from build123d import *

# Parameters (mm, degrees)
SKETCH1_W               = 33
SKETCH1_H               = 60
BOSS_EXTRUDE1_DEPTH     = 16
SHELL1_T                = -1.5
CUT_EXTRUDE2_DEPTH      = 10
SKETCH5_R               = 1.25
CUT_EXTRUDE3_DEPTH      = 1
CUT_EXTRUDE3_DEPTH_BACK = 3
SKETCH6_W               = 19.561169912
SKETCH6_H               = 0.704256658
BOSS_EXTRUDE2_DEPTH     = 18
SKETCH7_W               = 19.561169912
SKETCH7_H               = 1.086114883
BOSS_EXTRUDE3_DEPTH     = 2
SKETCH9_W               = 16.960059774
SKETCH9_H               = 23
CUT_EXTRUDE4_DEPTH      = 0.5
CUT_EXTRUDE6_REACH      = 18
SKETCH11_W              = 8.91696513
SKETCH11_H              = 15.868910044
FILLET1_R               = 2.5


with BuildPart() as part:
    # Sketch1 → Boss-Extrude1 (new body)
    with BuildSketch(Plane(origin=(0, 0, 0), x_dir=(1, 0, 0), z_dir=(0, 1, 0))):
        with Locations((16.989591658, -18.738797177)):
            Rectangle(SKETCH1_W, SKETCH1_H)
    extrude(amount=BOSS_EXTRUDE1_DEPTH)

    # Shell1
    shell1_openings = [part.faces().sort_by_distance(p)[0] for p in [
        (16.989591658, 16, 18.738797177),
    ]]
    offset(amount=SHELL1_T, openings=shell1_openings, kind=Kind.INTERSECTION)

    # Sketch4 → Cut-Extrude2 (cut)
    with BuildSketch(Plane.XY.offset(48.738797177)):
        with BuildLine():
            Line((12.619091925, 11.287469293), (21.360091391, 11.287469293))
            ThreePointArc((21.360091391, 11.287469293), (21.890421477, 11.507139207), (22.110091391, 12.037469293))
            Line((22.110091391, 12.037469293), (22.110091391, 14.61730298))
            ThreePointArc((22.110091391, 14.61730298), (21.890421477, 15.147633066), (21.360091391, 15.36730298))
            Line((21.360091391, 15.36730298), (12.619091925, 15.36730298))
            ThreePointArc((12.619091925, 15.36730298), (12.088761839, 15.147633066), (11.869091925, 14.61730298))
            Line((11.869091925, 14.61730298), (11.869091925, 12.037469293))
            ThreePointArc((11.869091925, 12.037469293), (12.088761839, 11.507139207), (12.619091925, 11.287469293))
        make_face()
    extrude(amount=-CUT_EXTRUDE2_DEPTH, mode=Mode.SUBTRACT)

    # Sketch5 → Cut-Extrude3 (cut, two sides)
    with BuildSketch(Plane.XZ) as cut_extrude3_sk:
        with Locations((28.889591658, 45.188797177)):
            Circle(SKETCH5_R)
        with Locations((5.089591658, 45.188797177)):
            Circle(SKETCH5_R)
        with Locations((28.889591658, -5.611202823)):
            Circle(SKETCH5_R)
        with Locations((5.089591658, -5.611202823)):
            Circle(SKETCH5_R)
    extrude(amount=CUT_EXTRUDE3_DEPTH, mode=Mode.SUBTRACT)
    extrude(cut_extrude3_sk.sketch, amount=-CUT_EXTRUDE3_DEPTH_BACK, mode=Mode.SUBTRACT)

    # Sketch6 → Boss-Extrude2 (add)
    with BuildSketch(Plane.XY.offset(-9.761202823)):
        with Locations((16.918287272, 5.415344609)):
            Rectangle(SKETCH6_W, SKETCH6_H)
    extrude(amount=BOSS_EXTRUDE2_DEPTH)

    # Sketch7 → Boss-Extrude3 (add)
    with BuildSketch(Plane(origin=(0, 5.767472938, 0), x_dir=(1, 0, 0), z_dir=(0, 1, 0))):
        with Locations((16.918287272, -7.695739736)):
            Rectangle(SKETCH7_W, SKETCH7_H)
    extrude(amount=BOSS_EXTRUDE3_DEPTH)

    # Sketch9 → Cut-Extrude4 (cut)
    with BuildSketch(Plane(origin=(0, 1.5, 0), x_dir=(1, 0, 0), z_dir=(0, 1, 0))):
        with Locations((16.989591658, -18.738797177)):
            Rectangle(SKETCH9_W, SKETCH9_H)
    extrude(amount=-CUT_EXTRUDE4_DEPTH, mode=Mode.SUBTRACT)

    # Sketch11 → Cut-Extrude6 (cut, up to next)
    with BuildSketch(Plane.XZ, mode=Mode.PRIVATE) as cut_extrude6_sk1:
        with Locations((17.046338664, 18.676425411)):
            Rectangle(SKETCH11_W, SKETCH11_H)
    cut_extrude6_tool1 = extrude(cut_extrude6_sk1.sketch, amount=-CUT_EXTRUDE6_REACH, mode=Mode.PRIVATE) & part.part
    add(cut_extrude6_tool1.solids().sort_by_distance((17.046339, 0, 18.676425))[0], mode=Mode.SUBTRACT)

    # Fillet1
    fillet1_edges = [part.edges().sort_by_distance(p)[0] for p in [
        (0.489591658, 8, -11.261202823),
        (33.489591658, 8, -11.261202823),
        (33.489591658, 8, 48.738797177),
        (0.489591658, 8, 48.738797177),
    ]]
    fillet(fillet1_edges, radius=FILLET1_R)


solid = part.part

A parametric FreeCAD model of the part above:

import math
import FreeCAD as App
import Part
import Sketcher
Q = App.Units.Quantity


def edges_at(feature, points):
    """Names of the edges that pass closest to the given points."""
    edges = feature.Shape.Edges
    near = lambda p: min(range(len(edges)), key=lambda i: edges[i].distToShape(Part.Vertex(*p))[0])
    return sorted({f"Edge{near(p) + 1}" for p in points})


def faces_at(feature, points):
    """Names of the faces that lie closest to the given points."""
    faces = feature.Shape.Faces
    near = lambda p: min(range(len(faces)), key=lambda i: faces[i].distToShape(Part.Vertex(*p))[0])
    return sorted({f"Face{near(p) + 1}" for p in points})

doc = App.newDocument("Part")
params = doc.addObject("Spreadsheet::Sheet", "Params")
for row, (alias, value) in enumerate([
    ("sketch1_width", "33 mm"),
    ("sketch1_height", "60 mm"),
    ("pad1_length", "16 mm"),
    ("thickness_wall", "1.5 mm"),
    ("sketch2_radius", "0.75 mm"),
    ("pocket1_length", "10 mm"),
    ("sketch3_diameter", "2.5 mm"),
    ("pad2_length", "18 mm"),
    ("pad3_length", "2 mm"),
    ("sketch6_height", "23 mm"),
    ("pocket3_length", "0.5 mm"),
    ("fillet_radius", "2.5 mm"),
], start=1):
    params.set(f"A{row}", alias)
    params.set(f"B{row}", "=" + value)
    params.setAlias(f"B{row}", alias)

body = doc.addObject("PartDesign::Body", "Body")

# Sketch on XZ plane
sketch1 = doc.addObject("Sketcher::SketchObject", "Sketch")
body.addObject(sketch1)
sketch1.AttachmentSupport = (doc.XZ_Plane, [""])
sketch1.MapMode = "FlatFace"
sketch1.addGeometry(Part.LineSegment(App.Vector(0, -11, 0), App.Vector(0, 49, 0)), False)
sketch1.addGeometry(Part.LineSegment(App.Vector(0, 49, 0), App.Vector(33, 49, 0)), False)
sketch1.addGeometry(Part.LineSegment(App.Vector(33, 49, 0), App.Vector(33, -11, 0)), False)
sketch1.addGeometry(Part.LineSegment(App.Vector(33, -11, 0), App.Vector(0, -11, 0)), False)
sketch1.addConstraint(Sketcher.Constraint("Coincident", 0, 2, 1, 1))
sketch1.addConstraint(Sketcher.Constraint("Coincident", 1, 2, 2, 1))
sketch1.addConstraint(Sketcher.Constraint("Coincident", 2, 2, 3, 1))
sketch1.addConstraint(Sketcher.Constraint("Coincident", 3, 2, 0, 1))
sketch1.addConstraint(Sketcher.Constraint("Vertical", 0))
sketch1.addConstraint(Sketcher.Constraint("Horizontal", 1))
sketch1.addConstraint(Sketcher.Constraint("Vertical", 2))
sketch1.addConstraint(Sketcher.Constraint("Horizontal", 3))
sketch1.addConstraint(Sketcher.Constraint("DistanceX", 1, 1, 1, 2, Q("33 mm")))
sketch1.addConstraint(Sketcher.Constraint("DistanceY", 0, 1, 0, 2, Q("60 mm")))
sketch1.addConstraint(Sketcher.Constraint("DistanceX", -1, 1, 0, 2, Q("0.489592 mm")))
sketch1.addConstraint(Sketcher.Constraint("DistanceY", -1, 1, 0, 2, Q("48.738797 mm")))
sketch1.setExpression("Constraints[8]", "Params.sketch1_width")
sketch1.setExpression("Constraints[9]", "Params.sketch1_height")
pad1 = doc.addObject("PartDesign::Pad", "Pad")
body.addObject(pad1)
pad1.Profile = sketch1
pad1.setExpression("Length", "Params.pad1_length")
pad1.Reversed = True
doc.recompute()

thickness = doc.addObject("PartDesign::Thickness", "Thickness")
body.addObject(thickness)
thickness.Base = (pad1, faces_at(pad1, [(16.99, 16, 18.739)]))
thickness.setExpression("Value", "Params.thickness_wall")
thickness.Reversed = True
thickness.Join = "Intersection"

# Sketch on XY plane
sketch2 = doc.addObject("Sketcher::SketchObject", "Sketch001")
body.addObject(sketch2)
sketch2.AttachmentSupport = (doc.XY_Plane, [""])
sketch2.MapMode = "FlatFace"
sketch2.AttachmentOffset = App.Placement(App.Vector(0, 0, 48.738797), App.Rotation())
sketch2.addGeometry(Part.LineSegment(App.Vector(12.6, 11.3, 0), App.Vector(21.4, 11.3, 0)), False)
sketch2.addGeometry(Part.ArcOfCircle(Part.Circle(App.Vector(21.4, 12, 0), App.Vector(0, 0, 1), 0.8), math.radians(-90), math.radians(0)), False)
sketch2.addGeometry(Part.LineSegment(App.Vector(22.1, 12, 0), App.Vector(22.1, 14.6, 0)), False)
sketch2.addGeometry(Part.ArcOfCircle(Part.Circle(App.Vector(21.4, 14.6, 0), App.Vector(0, 0, 1), 0.8), math.radians(0), math.radians(90)), False)
sketch2.addGeometry(Part.LineSegment(App.Vector(21.4, 15.4, 0), App.Vector(12.6, 15.4, 0)), False)
sketch2.addGeometry(Part.ArcOfCircle(Part.Circle(App.Vector(12.6, 14.6, 0), App.Vector(0, 0, 1), 0.8), math.radians(90), math.radians(180)), False)
sketch2.addGeometry(Part.LineSegment(App.Vector(11.9, 14.6, 0), App.Vector(11.9, 12, 0)), False)
sketch2.addGeometry(Part.ArcOfCircle(Part.Circle(App.Vector(12.6, 12, 0), App.Vector(0, 0, 1), 0.8), math.radians(180), math.radians(270)), False)
sketch2.addConstraint(Sketcher.Constraint("Tangent", 0, 2, 1, 1))
sketch2.addConstraint(Sketcher.Constraint("Tangent", 1, 2, 2, 1))
sketch2.addConstraint(Sketcher.Constraint("Tangent", 2, 2, 3, 1))
sketch2.addConstraint(Sketcher.Constraint("Tangent", 3, 2, 4, 1))
sketch2.addConstraint(Sketcher.Constraint("Tangent", 4, 2, 5, 1))
sketch2.addConstraint(Sketcher.Constraint("Tangent", 5, 2, 6, 1))
sketch2.addConstraint(Sketcher.Constraint("Tangent", 6, 2, 7, 1))
sketch2.addConstraint(Sketcher.Constraint("Tangent", 7, 2, 0, 1))
sketch2.addConstraint(Sketcher.Constraint("Horizontal", 0))
sketch2.addConstraint(Sketcher.Constraint("Vertical", 2))
sketch2.addConstraint(Sketcher.Constraint("Horizontal", 4))
sketch2.addConstraint(Sketcher.Constraint("Vertical", 6))
sketch2.addConstraint(Sketcher.Constraint("Equal", 1, 3))
sketch2.addConstraint(Sketcher.Constraint("Equal", 3, 5))
sketch2.addConstraint(Sketcher.Constraint("Equal", 5, 7))
sketch2.addConstraint(Sketcher.Constraint("Radius", 1, Q("0.75 mm")))
sketch2.addConstraint(Sketcher.Constraint("DistanceX", 0, 1, 0, 2, Q("8.740999 mm")))
sketch2.addConstraint(Sketcher.Constraint("DistanceY", 2, 1, 2, 2, Q("2.579834 mm")))
sketch2.addConstraint(Sketcher.Constraint("DistanceX", -1, 1, 1, 3, Q("21.360091 mm")))
sketch2.addConstraint(Sketcher.Constraint("DistanceY", -1, 1, 1, 3, Q("12.037469 mm")))
sketch2.setExpression("Constraints[15]", "Params.sketch2_radius")
pocket1 = doc.addObject("PartDesign::Pocket", "Pocket")
body.addObject(pocket1)
pocket1.Profile = sketch2
pocket1.setExpression("Length", "Params.pocket1_length")

# Sketch on XZ plane
sketch3 = doc.addObject("Sketcher::SketchObject", "Sketch002")
body.addObject(sketch3)
sketch3.AttachmentSupport = (doc.XZ_Plane, [""])
sketch3.MapMode = "FlatFace"
sketch3.addGeometry(Part.Circle(App.Vector(28.9, 45.2, 0), App.Vector(0, 0, 1), 1.2), False)
sketch3.addGeometry(Part.Circle(App.Vector(5.1, 45.2, 0), App.Vector(0, 0, 1), 1.2), False)
sketch3.addGeometry(Part.Circle(App.Vector(28.9, -5.6, 0), App.Vector(0, 0, 1), 1.2), False)
sketch3.addGeometry(Part.Circle(App.Vector(5.1, -5.6, 0), App.Vector(0, 0, 1), 1.2), False)
sketch3.addConstraint(Sketcher.Constraint("Equal", 0, 1))
sketch3.addConstraint(Sketcher.Constraint("Equal", 1, 2))
sketch3.addConstraint(Sketcher.Constraint("Equal", 2, 3))
sketch3.addConstraint(Sketcher.Constraint("Horizontal", 0, 3, 1, 3))
sketch3.addConstraint(Sketcher.Constraint("Horizontal", 2, 3, 3, 3))
sketch3.addConstraint(Sketcher.Constraint("Vertical", 0, 3, 2, 3))
sketch3.addConstraint(Sketcher.Constraint("Vertical", 1, 3, 3, 3))
sketch3.addConstraint(Sketcher.Constraint("Diameter", 0, Q("2.5 mm")))
sketch3.addConstraint(Sketcher.Constraint("DistanceX", 1, 3, 0, 3, Q("23.8 mm")))
sketch3.addConstraint(Sketcher.Constraint("DistanceY", 2, 3, 0, 3, Q("50.8 mm")))
sketch3.addConstraint(Sketcher.Constraint("DistanceX", -1, 1, 0, 3, Q("28.889592 mm")))
sketch3.addConstraint(Sketcher.Constraint("DistanceY", -1, 1, 0, 3, Q("45.188797 mm")))
sketch3.setExpression("Constraints[7]", "Params.sketch3_diameter")
pocket2 = doc.addObject("PartDesign::Pocket", "Pocket001")
body.addObject(pocket2)
pocket2.Profile = sketch3
pocket2.Type = "ThroughAll"
pocket2.Midplane = True

# Sketch on XY plane
sketch4 = doc.addObject("Sketcher::SketchObject", "Sketch003")
body.addObject(sketch4)
sketch4.AttachmentSupport = (doc.XY_Plane, [""])
sketch4.MapMode = "FlatFace"
sketch4.AttachmentOffset = App.Placement(App.Vector(0, 0, -9.761203), App.Rotation())
sketch4.addGeometry(Part.LineSegment(App.Vector(7.1, 5.8, 0), App.Vector(7.1, 5.1, 0)), False)
sketch4.addGeometry(Part.LineSegment(App.Vector(7.1, 5.1, 0), App.Vector(26.7, 5.1, 0)), False)
sketch4.addGeometry(Part.LineSegment(App.Vector(26.7, 5.1, 0), App.Vector(26.7, 5.8, 0)), False)
sketch4.addGeometry(Part.LineSegment(App.Vector(26.7, 5.8, 0), App.Vector(7.1, 5.8, 0)), False)
sketch4.addConstraint(Sketcher.Constraint("Coincident", 0, 2, 1, 1))
sketch4.addConstraint(Sketcher.Constraint("Coincident", 1, 2, 2, 1))
sketch4.addConstraint(Sketcher.Constraint("Coincident", 2, 2, 3, 1))
sketch4.addConstraint(Sketcher.Constraint("Coincident", 3, 2, 0, 1))
sketch4.addConstraint(Sketcher.Constraint("Vertical", 0))
sketch4.addConstraint(Sketcher.Constraint("Horizontal", 1))
sketch4.addConstraint(Sketcher.Constraint("Vertical", 2))
sketch4.addConstraint(Sketcher.Constraint("Horizontal", 3))
sketch4.addConstraint(Sketcher.Constraint("DistanceX", 1, 1, 1, 2, Q("19.56117 mm")))
sketch4.addConstraint(Sketcher.Constraint("DistanceY", 0, 2, 0, 1, Q("0.704257 mm")))
sketch4.addConstraint(Sketcher.Constraint("DistanceX", -1, 1, 0, 2, Q("7.137702 mm")))
sketch4.addConstraint(Sketcher.Constraint("DistanceY", -1, 1, 0, 2, Q("5.063216 mm")))
pad2 = doc.addObject("PartDesign::Pad", "Pad001")
body.addObject(pad2)
pad2.Profile = sketch4
pad2.setExpression("Length", "Params.pad2_length")

# Sketch on XZ plane
sketch5 = doc.addObject("Sketcher::SketchObject", "Sketch004")
body.addObject(sketch5)
sketch5.AttachmentSupport = (doc.XZ_Plane, [""])
sketch5.MapMode = "FlatFace"
sketch5.AttachmentOffset = App.Placement(App.Vector(0, 0, -5.767473), App.Rotation())
sketch5.addGeometry(Part.LineSegment(App.Vector(7.1, 7.2, 0), App.Vector(7.1, 8.2, 0)), False)
sketch5.addGeometry(Part.LineSegment(App.Vector(7.1, 8.2, 0), App.Vector(26.7, 8.2, 0)), False)
sketch5.addGeometry(Part.LineSegment(App.Vector(26.7, 8.2, 0), App.Vector(26.7, 7.2, 0)), False)
sketch5.addGeometry(Part.LineSegment(App.Vector(26.7, 7.2, 0), App.Vector(7.1, 7.2, 0)), False)
sketch5.addConstraint(Sketcher.Constraint("Coincident", 0, 2, 1, 1))
sketch5.addConstraint(Sketcher.Constraint("Coincident", 1, 2, 2, 1))
sketch5.addConstraint(Sketcher.Constraint("Coincident", 2, 2, 3, 1))
sketch5.addConstraint(Sketcher.Constraint("Coincident", 3, 2, 0, 1))
sketch5.addConstraint(Sketcher.Constraint("Vertical", 0))
sketch5.addConstraint(Sketcher.Constraint("Horizontal", 1))
sketch5.addConstraint(Sketcher.Constraint("Vertical", 2))
sketch5.addConstraint(Sketcher.Constraint("Horizontal", 3))
sketch5.addConstraint(Sketcher.Constraint("DistanceX", 1, 1, 1, 2, Q("19.56117 mm")))
sketch5.addConstraint(Sketcher.Constraint("DistanceY", 0, 1, 0, 2, Q("1.086115 mm")))
sketch5.addConstraint(Sketcher.Constraint("DistanceX", -1, 1, 0, 2, Q("7.137702 mm")))
sketch5.addConstraint(Sketcher.Constraint("DistanceY", -1, 1, 0, 2, Q("8.238797 mm")))
pad3 = doc.addObject("PartDesign::Pad", "Pad002")
body.addObject(pad3)
pad3.Profile = sketch5
pad3.setExpression("Length", "Params.pad3_length")
pad3.Reversed = True

# Sketch on XZ plane
sketch6 = doc.addObject("Sketcher::SketchObject", "Sketch005")
body.addObject(sketch6)
sketch6.AttachmentSupport = (doc.XZ_Plane, [""])
sketch6.MapMode = "FlatFace"
sketch6.AttachmentOffset = App.Placement(App.Vector(0, 0, -1.5), App.Rotation())
sketch6.addGeometry(Part.LineSegment(App.Vector(9, 7, 0), App.Vector(9, 30, 0)), False)
sketch6.addGeometry(Part.LineSegment(App.Vector(9, 30, 0), App.Vector(25, 30, 0)), False)
sketch6.addGeometry(Part.LineSegment(App.Vector(25, 30, 0), App.Vector(25, 7, 0)), False)
sketch6.addGeometry(Part.LineSegment(App.Vector(25, 7, 0), App.Vector(9, 7, 0)), False)
sketch6.addConstraint(Sketcher.Constraint("Coincident", 0, 2, 1, 1))
sketch6.addConstraint(Sketcher.Constraint("Coincident", 1, 2, 2, 1))
sketch6.addConstraint(Sketcher.Constraint("Coincident", 2, 2, 3, 1))
sketch6.addConstraint(Sketcher.Constraint("Coincident", 3, 2, 0, 1))
sketch6.addConstraint(Sketcher.Constraint("Vertical", 0))
sketch6.addConstraint(Sketcher.Constraint("Horizontal", 1))
sketch6.addConstraint(Sketcher.Constraint("Vertical", 2))
sketch6.addConstraint(Sketcher.Constraint("Horizontal", 3))
sketch6.addConstraint(Sketcher.Constraint("DistanceY", 0, 1, 0, 2, Q("23 mm")))
sketch6.addConstraint(Sketcher.Constraint("DistanceX", 1, 1, 1, 2, Q("16.96006 mm")))
sketch6.addConstraint(Sketcher.Constraint("DistanceX", -1, 1, 0, 2, Q("8.509562 mm")))
sketch6.addConstraint(Sketcher.Constraint("DistanceY", -1, 1, 0, 2, Q("30.238797 mm")))
sketch6.setExpression("Constraints[8]", "Params.sketch6_height")
pocket3 = doc.addObject("PartDesign::Pocket", "Pocket002")
body.addObject(pocket3)
pocket3.Profile = sketch6
pocket3.setExpression("Length", "Params.pocket3_length")
pocket3.Reversed = True

# Sketch on XZ plane
sketch7 = doc.addObject("Sketcher::SketchObject", "Sketch006")
body.addObject(sketch7)
sketch7.AttachmentSupport = (doc.XZ_Plane, [""])
sketch7.MapMode = "FlatFace"
sketch7.addGeometry(Part.LineSegment(App.Vector(13, 27, 0), App.Vector(13, 11, 0)), False)
sketch7.addGeometry(Part.LineSegment(App.Vector(13, 11, 0), App.Vector(22, 11, 0)), False)
sketch7.addGeometry(Part.LineSegment(App.Vector(22, 11, 0), App.Vector(22, 27, 0)), False)
sketch7.addGeometry(Part.LineSegment(App.Vector(22, 27, 0), App.Vector(13, 27, 0)), False)
sketch7.addConstraint(Sketcher.Constraint("Coincident", 0, 2, 1, 1))
sketch7.addConstraint(Sketcher.Constraint("Coincident", 1, 2, 2, 1))
sketch7.addConstraint(Sketcher.Constraint("Coincident", 2, 2, 3, 1))
sketch7.addConstraint(Sketcher.Constraint("Coincident", 3, 2, 0, 1))
sketch7.addConstraint(Sketcher.Constraint("Vertical", 0))
sketch7.addConstraint(Sketcher.Constraint("Horizontal", 1))
sketch7.addConstraint(Sketcher.Constraint("Vertical", 2))
sketch7.addConstraint(Sketcher.Constraint("Horizontal", 3))
sketch7.addConstraint(Sketcher.Constraint("DistanceY", 0, 2, 0, 1, Q("15.86891 mm")))
sketch7.addConstraint(Sketcher.Constraint("DistanceX", 1, 1, 1, 2, Q("8.916965 mm")))
sketch7.addConstraint(Sketcher.Constraint("DistanceY", -1, 1, 0, 2, Q("10.74197 mm")))
sketch7.addConstraint(Sketcher.Constraint("DistanceX", -1, 1, 1, 2, Q("21.504821 mm")))
pocket4 = doc.addObject("PartDesign::Pocket", "Pocket003")
body.addObject(pocket4)
pocket4.Profile = sketch7
pocket4.Type = "UpToFirst"
doc.recompute()

fillet = doc.addObject("PartDesign::Fillet", "Fillet")
body.addObject(fillet)
fillet.Base = (pocket4, edges_at(pocket4, [
    (0.49, 8, -11.261),
    (33.49, 8, -11.261),
    (33.49, 8, 48.739),
    (0.49, 8, 48.739),
]))
fillet.setExpression("Radius", "Params.fillet_radius")

doc.recompute()
